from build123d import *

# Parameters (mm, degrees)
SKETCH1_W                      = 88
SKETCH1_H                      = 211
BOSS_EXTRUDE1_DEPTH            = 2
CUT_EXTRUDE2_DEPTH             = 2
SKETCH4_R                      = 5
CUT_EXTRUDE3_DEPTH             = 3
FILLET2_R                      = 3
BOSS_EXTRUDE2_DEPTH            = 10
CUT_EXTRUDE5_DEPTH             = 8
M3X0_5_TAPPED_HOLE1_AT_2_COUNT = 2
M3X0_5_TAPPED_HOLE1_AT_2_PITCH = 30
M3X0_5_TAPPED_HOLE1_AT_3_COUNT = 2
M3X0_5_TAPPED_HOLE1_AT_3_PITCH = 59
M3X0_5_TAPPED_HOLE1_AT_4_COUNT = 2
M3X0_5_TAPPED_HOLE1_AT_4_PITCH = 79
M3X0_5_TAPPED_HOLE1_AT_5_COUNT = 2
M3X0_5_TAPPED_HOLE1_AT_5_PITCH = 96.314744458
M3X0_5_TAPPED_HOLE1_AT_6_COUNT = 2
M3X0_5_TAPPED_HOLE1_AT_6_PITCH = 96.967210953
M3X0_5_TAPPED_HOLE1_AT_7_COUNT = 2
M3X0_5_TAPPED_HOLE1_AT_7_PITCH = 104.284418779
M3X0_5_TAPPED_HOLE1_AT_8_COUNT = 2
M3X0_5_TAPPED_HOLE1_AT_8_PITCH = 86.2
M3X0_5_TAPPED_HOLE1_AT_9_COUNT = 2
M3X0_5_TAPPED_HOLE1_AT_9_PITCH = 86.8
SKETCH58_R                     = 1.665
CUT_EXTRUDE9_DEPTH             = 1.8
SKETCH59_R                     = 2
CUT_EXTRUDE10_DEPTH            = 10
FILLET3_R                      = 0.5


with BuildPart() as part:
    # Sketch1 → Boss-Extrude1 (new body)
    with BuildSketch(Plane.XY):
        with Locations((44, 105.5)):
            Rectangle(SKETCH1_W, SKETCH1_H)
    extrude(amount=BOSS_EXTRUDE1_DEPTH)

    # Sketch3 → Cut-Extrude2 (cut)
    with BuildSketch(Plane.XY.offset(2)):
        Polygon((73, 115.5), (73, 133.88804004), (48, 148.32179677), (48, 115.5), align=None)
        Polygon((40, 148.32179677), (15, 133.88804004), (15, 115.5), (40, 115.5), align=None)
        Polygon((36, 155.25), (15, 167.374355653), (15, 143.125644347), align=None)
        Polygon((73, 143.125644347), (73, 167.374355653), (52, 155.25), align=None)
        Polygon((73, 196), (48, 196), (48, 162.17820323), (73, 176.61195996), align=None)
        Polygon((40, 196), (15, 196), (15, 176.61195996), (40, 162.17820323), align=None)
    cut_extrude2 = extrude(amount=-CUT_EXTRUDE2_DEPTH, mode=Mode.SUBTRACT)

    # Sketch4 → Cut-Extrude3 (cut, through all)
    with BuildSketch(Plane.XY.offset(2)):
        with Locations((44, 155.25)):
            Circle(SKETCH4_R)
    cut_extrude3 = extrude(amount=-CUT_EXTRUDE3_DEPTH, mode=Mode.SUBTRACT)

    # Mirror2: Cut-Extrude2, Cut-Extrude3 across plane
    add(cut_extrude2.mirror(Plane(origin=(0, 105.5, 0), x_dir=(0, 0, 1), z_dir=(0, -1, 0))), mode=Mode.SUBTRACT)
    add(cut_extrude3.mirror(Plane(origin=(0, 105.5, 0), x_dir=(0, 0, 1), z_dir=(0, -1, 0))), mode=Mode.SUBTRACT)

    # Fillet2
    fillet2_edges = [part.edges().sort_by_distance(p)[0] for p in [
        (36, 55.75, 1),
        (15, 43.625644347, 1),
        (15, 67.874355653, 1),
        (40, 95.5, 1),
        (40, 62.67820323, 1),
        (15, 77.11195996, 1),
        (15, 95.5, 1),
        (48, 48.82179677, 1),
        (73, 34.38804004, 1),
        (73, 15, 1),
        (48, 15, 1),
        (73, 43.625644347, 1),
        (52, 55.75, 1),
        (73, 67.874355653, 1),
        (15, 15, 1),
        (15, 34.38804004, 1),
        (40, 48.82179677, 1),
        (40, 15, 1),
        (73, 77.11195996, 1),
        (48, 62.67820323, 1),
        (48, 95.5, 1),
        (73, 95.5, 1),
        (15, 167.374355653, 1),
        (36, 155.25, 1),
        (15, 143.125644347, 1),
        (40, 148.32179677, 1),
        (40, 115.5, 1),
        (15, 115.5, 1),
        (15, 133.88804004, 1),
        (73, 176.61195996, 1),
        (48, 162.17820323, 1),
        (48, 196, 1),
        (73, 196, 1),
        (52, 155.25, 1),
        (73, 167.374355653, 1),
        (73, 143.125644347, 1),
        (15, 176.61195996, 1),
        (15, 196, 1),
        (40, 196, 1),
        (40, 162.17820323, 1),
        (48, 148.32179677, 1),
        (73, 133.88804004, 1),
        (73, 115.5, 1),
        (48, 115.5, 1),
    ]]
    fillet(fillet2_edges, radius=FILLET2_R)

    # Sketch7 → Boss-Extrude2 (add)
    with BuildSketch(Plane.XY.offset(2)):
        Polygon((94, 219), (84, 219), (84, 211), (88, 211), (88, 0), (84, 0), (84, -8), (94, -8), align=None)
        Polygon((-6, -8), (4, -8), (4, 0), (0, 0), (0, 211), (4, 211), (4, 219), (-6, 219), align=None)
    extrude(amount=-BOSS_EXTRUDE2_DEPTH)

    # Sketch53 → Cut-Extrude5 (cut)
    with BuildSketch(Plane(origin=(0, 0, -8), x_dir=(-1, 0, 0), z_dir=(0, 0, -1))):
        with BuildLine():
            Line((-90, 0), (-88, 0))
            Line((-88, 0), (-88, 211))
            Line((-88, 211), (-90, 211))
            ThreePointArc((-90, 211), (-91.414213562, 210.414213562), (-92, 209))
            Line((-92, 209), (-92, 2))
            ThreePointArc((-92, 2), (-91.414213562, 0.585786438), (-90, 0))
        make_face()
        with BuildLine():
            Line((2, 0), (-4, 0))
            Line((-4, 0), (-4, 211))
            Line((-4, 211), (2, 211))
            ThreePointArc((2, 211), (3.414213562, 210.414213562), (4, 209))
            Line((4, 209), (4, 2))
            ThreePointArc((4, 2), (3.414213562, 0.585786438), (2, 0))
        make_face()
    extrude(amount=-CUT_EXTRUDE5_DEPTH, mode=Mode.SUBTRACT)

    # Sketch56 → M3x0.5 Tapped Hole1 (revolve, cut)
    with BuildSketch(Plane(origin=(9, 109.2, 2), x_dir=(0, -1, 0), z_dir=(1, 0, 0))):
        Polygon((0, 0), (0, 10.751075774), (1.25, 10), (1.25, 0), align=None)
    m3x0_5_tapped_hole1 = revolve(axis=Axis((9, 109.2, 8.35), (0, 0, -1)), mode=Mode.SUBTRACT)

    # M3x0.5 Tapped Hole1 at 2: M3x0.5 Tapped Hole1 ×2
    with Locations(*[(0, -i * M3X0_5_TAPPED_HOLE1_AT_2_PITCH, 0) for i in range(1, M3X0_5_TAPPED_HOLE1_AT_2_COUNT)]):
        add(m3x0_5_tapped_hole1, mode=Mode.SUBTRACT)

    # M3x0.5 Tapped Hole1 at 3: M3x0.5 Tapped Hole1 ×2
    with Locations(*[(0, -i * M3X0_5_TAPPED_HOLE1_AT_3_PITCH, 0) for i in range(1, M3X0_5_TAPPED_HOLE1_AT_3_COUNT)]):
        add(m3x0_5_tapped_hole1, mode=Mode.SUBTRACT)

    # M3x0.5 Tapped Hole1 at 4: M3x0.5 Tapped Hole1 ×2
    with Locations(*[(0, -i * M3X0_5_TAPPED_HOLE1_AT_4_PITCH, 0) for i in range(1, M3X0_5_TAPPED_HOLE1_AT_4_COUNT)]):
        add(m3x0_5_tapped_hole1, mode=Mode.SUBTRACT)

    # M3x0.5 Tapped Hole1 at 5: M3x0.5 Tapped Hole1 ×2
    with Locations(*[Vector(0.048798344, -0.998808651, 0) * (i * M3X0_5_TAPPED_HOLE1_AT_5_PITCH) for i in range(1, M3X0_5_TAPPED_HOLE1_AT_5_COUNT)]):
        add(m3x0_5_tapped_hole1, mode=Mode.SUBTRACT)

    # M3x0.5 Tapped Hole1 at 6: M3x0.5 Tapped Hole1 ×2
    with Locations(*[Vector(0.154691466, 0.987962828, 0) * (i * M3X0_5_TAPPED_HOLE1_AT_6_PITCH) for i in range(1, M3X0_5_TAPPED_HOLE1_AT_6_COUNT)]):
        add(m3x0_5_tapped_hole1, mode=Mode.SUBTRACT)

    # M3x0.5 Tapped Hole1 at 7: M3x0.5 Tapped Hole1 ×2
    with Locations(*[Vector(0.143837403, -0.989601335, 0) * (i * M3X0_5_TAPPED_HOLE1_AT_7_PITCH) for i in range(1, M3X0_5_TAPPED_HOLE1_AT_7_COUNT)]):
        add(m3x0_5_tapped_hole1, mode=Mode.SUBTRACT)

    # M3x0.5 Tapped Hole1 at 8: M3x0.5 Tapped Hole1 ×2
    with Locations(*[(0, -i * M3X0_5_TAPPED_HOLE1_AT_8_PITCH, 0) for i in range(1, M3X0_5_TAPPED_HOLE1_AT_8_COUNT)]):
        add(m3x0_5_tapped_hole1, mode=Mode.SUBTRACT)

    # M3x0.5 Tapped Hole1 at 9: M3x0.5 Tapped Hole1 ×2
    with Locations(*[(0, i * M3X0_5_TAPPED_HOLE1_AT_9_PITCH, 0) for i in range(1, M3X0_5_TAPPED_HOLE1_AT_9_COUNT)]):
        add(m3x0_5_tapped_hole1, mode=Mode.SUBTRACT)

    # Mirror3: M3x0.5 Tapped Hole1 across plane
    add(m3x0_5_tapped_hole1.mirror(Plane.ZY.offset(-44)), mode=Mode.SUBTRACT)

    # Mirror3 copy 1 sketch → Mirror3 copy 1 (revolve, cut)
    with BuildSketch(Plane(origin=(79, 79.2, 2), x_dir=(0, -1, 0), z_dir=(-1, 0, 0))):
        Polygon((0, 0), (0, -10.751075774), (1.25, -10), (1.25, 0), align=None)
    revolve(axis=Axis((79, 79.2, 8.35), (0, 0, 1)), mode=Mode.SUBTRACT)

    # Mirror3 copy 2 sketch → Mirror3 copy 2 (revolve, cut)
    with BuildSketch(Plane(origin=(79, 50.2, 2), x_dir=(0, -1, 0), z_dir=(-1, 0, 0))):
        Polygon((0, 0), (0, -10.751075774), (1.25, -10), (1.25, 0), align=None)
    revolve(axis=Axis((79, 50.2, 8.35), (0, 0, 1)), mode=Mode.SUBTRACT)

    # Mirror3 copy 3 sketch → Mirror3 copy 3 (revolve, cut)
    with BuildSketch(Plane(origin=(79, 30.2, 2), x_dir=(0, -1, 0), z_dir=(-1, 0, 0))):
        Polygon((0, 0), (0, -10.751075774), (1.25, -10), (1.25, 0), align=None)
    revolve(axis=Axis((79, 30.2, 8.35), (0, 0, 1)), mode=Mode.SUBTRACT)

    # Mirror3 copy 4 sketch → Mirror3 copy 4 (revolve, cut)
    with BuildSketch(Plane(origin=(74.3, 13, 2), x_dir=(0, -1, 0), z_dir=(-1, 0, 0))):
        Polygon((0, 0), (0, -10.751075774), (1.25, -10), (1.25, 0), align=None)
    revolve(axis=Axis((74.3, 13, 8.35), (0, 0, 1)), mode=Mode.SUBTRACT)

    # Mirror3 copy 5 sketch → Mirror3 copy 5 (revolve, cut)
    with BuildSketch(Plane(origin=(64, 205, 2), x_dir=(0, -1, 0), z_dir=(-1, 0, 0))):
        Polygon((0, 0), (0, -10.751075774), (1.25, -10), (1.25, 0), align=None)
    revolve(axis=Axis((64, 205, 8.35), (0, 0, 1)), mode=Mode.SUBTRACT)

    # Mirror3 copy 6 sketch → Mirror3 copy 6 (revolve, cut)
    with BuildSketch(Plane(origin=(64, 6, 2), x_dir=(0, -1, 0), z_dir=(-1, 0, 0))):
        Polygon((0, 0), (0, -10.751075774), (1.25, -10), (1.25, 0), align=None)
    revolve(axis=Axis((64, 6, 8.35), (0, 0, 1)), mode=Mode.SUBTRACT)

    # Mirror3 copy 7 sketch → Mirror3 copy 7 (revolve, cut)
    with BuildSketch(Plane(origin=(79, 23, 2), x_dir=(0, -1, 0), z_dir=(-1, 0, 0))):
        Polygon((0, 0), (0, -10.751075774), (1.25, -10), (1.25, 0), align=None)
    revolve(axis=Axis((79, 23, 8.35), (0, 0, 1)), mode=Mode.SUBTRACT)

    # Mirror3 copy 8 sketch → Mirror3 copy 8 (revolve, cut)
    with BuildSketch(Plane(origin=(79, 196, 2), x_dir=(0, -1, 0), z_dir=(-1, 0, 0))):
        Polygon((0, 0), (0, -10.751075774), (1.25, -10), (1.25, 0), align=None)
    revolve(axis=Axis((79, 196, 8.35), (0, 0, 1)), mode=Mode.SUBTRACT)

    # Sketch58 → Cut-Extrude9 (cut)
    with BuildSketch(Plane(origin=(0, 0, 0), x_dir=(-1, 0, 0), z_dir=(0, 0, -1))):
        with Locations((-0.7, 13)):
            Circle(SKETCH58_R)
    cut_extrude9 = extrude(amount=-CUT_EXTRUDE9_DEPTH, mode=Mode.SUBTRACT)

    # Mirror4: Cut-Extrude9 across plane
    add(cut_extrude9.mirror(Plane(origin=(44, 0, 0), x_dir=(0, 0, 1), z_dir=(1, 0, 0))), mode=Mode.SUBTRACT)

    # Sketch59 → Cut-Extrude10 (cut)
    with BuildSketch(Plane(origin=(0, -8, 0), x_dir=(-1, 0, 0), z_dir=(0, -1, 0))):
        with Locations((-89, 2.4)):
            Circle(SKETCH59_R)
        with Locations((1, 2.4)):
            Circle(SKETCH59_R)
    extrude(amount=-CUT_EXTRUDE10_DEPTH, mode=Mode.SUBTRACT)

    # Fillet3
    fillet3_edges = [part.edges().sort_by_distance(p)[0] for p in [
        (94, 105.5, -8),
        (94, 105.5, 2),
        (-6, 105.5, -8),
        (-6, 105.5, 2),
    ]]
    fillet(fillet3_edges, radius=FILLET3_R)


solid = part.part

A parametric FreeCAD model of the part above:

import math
import FreeCAD as App
import Part
import Sketcher

V = App.Vector
Q = App.Units.Quantity


def edges_at(feature, points):
    """Names of the edges that pass closest to the given points."""
    edges = feature.Shape.Edges
    near = lambda p: min(range(len(edges)), key=lambda i: edges[i].distToShape(Part.Vertex(*p))[0])
    return sorted({f"Edge{near(p) + 1}" for p in points})

doc = App.newDocument("Part")
body = doc.addObject("PartDesign::Body", "Body")

# Sketch on XY plane
sketch1 = body.newObject("Sketcher::SketchObject", "Sketch")
sketch1.AttachmentSupport = (doc.getObject("XY_Plane"), [""])
sketch1.MapMode = "FlatFace"
sketch1.addGeometry(Part.LineSegment(V(0, 211, 0), V(0, 0, 0)), False)
sketch1.addGeometry(Part.LineSegment(V(0, 0, 0), V(88, 0, 0)), False)
sketch1.addGeometry(Part.LineSegment(V(88, 0, 0), V(88, 211, 0)), False)
sketch1.addGeometry(Part.LineSegment(V(88, 211, 0), V(0, 211, 0)), False)
sketch1.addConstraint(Sketcher.Constraint("Coincident", 0, 2, 1, 1))
sketch1.addConstraint(Sketcher.Constraint("Coincident", 1, 2, 2, 1))
sketch1.addConstraint(Sketcher.Constraint("Coincident", 2, 2, 3, 1))
sketch1.addConstraint(Sketcher.Constraint("Coincident", 3, 2, 0, 1))
sketch1.addConstraint(Sketcher.Constraint("Vertical", 0))
sketch1.addConstraint(Sketcher.Constraint("Horizontal", 1))
sketch1.addConstraint(Sketcher.Constraint("Vertical", 2))
sketch1.addConstraint(Sketcher.Constraint("Horizontal", 3))
sketch1.addConstraint(Sketcher.Constraint("Coincident", 0, 2, -1, 1))
sketch1.addConstraint(Sketcher.Constraint("DistanceX", 1, 1, 1, 2, Q("88 mm")))
sketch1.addConstraint(Sketcher.Constraint("DistanceY", 0, 2, 0, 1, Q("211 mm")))
pad1 = body.newObject("PartDesign::Pad", "Pad")
pad1.Profile = sketch1
pad1.Length = 2

# Sketch on XY plane
sketch2 = body.newObject("Sketcher::SketchObject", "Sketch001")
sketch2.AttachmentSupport = (doc.getObject("XY_Plane"), [""])
sketch2.MapMode = "FlatFace"
sketch2.AttachmentOffset = App.Placement(V(0, 0, 2), App.Rotation())
sketch2.addGeometry(Part.LineSegment(V(73, 116, 0), V(73, 134, 0)), False)
sketch2.addGeometry(Part.LineSegment(V(73, 134, 0), V(48, 148, 0)), False)
sketch2.addGeometry(Part.LineSegment(V(48, 148, 0), V(48, 116, 0)), False)
sketch2.addGeometry(Part.LineSegment(V(48, 116, 0), V(73, 116, 0)), False)
sketch2.addGeometry(Part.LineSegment(V(40, 148, 0), V(15, 134, 0)), False)
sketch2.addGeometry(Part.LineSegment(V(15, 134, 0), V(15, 116, 0)), False)
sketch2.addGeometry(Part.LineSegment(V(15, 116, 0), V(40, 116, 0)), False)
sketch2.addGeometry(Part.LineSegment(V(40, 116, 0), V(40, 148, 0)), False)
sketch2.addGeometry(Part.LineSegment(V(36, 155, 0), V(15, 167, 0)), False)
sketch2.addGeometry(Part.LineSegment(V(15, 167, 0), V(15, 143, 0)), False)
sketch2.addGeometry(Part.LineSegment(V(15, 143, 0), V(36, 155, 0)), False)
sketch2.addGeometry(Part.LineSegment(V(73, 143, 0), V(73, 167, 0)), False)
sketch2.addGeometry(Part.LineSegment(V(73, 167, 0), V(52, 155, 0)), False)
sketch2.addGeometry(Part.LineSegment(V(52, 155, 0), V(73, 143, 0)), False)
sketch2.addGeometry(Part.LineSegment(V(73, 196, 0), V(48, 196, 0)), False)
sketch2.addGeometry(Part.LineSegment(V(48, 196, 0), V(48, 162, 0)), False)
sketch2.addGeometry(Part.LineSegment(V(48, 162, 0), V(73, 177, 0)), False)
sketch2.addGeometry(Part.LineSegment(V(73, 177, 0), V(73, 196, 0)), False)
sketch2.addGeometry(Part.LineSegment(V(40, 196, 0), V(15, 196, 0)), False)
sketch2.addGeometry(Part.LineSegment(V(15, 196, 0), V(15, 177, 0)), False)
sketch2.addGeometry(Part.LineSegment(V(15, 177, 0), V(40, 162, 0)), False)
sketch2.addGeometry(Part.LineSegment(V(40, 162, 0), V(40, 196, 0)), False)
sketch2.addConstraint(Sketcher.Constraint("Coincident", 0, 2, 1, 1))
sketch2.addConstraint(Sketcher.Constraint("Coincident", 1, 2, 2, 1))
sketch2.addConstraint(Sketcher.Constraint("Coincident", 2, 2, 3, 1))
sketch2.addConstraint(Sketcher.Constraint("Coincident", 3, 2, 0, 1))
sketch2.addConstraint(Sketcher.Constraint("Coincident", 4, 2, 5, 1))
sketch2.addConstraint(Sketcher.Constraint("Coincident", 5, 2, 6, 1))
sketch2.addConstraint(Sketcher.Constraint("Coincident", 6, 2, 7, 1))
sketch2.addConstraint(Sketcher.Constraint("Coincident", 7, 2, 4, 1))
sketch2.addConstraint(Sketcher.Constraint("Coincident", 8, 2, 9, 1))
sketch2.addConstraint(Sketcher.Constraint("Coincident", 9, 2, 10, 1))
sketch2.addConstraint(Sketcher.Constraint("Coincident", 10, 2, 8, 1))
sketch2.addConstraint(Sketcher.Constraint("Coincident", 11, 2, 12, 1))
sketch2.addConstraint(Sketcher.Constraint("Coincident", 12, 2, 13, 1))
sketch2.addConstraint(Sketcher.Constraint("Coincident", 13, 2, 11, 1))
sketch2.addConstraint(Sketcher.Constraint("Coincident", 14, 2, 15, 1))
sketch2.addConstraint(Sketcher.Constraint("Coincident", 15, 2, 16, 1))
sketch2.addConstraint(Sketcher.Constraint("Coincident", 16, 2, 17, 1))
sketch2.addConstraint(Sketcher.Constraint("Coincident", 17, 2, 14, 1))
sketch2.addConstraint(Sketcher.Constraint("Coincident", 18, 2, 19, 1))
sketch2.addConstraint(Sketcher.Constraint("Coincident", 19, 2, 20, 1))
sketch2.addConstraint(Sketcher.Constraint("Coincident", 20, 2, 21, 1))
sketch2.addConstraint(Sketcher.Constraint("Coincident", 21, 2, 18, 1))
sketch2.addConstraint(Sketcher.Constraint("Vertical", 0))
sketch2.addConstraint(Sketcher.Constraint("Vertical", 2))
sketch2.addConstraint(Sketcher.Constraint("Horizontal", 3))
sketch2.addConstraint(Sketcher.Constraint("Vertical", 5))
sketch2.addConstraint(Sketcher.Constraint("Horizontal", 6))
sketch2.addConstraint(Sketcher.Constraint("Vertical", 7))
sketch2.addConstraint(Sketcher.Constraint("Vertical", 9))
sketch2.addConstraint(Sketcher.Constraint("Vertical", 11))
sketch2.addConstraint(Sketcher.Constraint("Horizontal", 14))
sketch2.addConstraint(Sketcher.Constraint("Vertical", 15))
sketch2.addConstraint(Sketcher.Constraint("Vertical", 17))
sketch2.addConstraint(Sketcher.Constraint("Horizontal", 18))
sketch2.addConstraint(Sketcher.Constraint("Vertical", 19))
sketch2.addConstraint(Sketcher.Constraint("Vertical", 21))
sketch2.addConstraint(Sketcher.Constraint("Parallel", 1, 8))
sketch2.addConstraint(Sketcher.Constraint("Parallel", 4, 10))
sketch2.addConstraint(Sketcher.Constraint("Parallel", 10, 12))
sketch2.addConstraint(Sketcher.Constraint("Parallel", 8, 13))
sketch2.addConstraint(Sketcher.Constraint("Parallel", 12, 16))
sketch2.addConstraint(Sketcher.Constraint("Parallel", 13, 20))
sketch2.addConstraint(Sketcher.Constraint("Horizontal", 0, 2, 4, 2))
sketch2.addConstraint(Sketcher.Constraint("Horizontal", 3, 2, 5, 2))
sketch2.addConstraint(Sketcher.Constraint("Horizontal", 1, 2, 7, 2))
sketch2.addConstraint(Sketcher.Constraint("Horizontal", 8, 2, 11, 2))
sketch2.addConstraint(Sketcher.Constraint("Horizontal", 10, 2, 12, 2))
sketch2.addConstraint(Sketcher.Constraint("Horizontal", 9, 2, 13, 2))
sketch2.addConstraint(Sketcher.Constraint("Horizontal", 17, 2, 18, 2))
sketch2.addConstraint(Sketcher.Constraint("Horizontal", 16, 2, 19, 2))
sketch2.addConstraint(Sketcher.Constraint("Horizontal", 15, 2, 20, 2))
sketch2.addConstraint(Sketcher.Constraint("Vertical", 5, 2, 8, 2))
sketch2.addConstraint(Sketcher.Constraint("Vertical", 3, 2, 11, 2))
sketch2.addConstraint(Sketcher.Constraint("Vertical", 2, 2, 14, 2))
sketch2.addConstraint(Sketcher.Constraint("Vertical", 13, 2, 16, 2))
sketch2.addConstraint(Sketcher.Constraint("Vertical", 9, 2, 18, 2))
sketch2.addConstraint(Sketcher.Constraint("DistanceX", 3, 1, 3, 2, Q("25 mm")))
sketch2.addConstraint(Sketcher.Constraint("Angle", 1, Q("150 deg")))
sketch2.addConstraint(Sketcher.Constraint("DistanceX", -1, 1, 0, 2, Q("73 mm")))
sketch2.addConstraint(Sketcher.Constraint("DistanceX", -1, 1, 4, 2, Q("15 mm")))
sketch2.addConstraint(Sketcher.Constraint("DistanceX", -1, 1, 10, 2, Q("36 mm")))
sketch2.addConstraint(Sketcher.Constraint("DistanceY", -1, 1, 14, 2, Q("196 mm")))
sketch2.addConstraint(Sketcher.Constraint("DistanceY", -1, 1, 2, 2, Q("115.5 mm")))
sketch2.addConstraint(Sketcher.Constraint("DistanceY", -1, 1, 10, 2, Q("155.25 mm")))
sketch2.addConstraint(Sketcher.Constraint("DistanceY", 0, 1, 0, 2, Q("18.38804 mm")))
sketch2.addConstraint(Sketcher.Constraint("DistanceY", 17, 1, 17, 2, Q("19.38804 mm")))
pocket1 = body.newObject("PartDesign::Pocket", "Pocket")
pocket1.Profile = sketch2
pocket1.Length = 2

# Sketch on XY plane
sketch3 = body.newObject("Sketcher::SketchObject", "Sketch002")
sketch3.AttachmentSupport = (doc.getObject("XY_Plane"), [""])
sketch3.MapMode = "FlatFace"
sketch3.AttachmentOffset = App.Placement(V(0, 0, 2), App.Rotation())
sketch3.addGeometry(Part.Circle(V(44, 155, 0), V(0, 0, 1), 5), False)
sketch3.addConstraint(Sketcher.Constraint("Diameter", 0, Q("10 mm")))
sketch3.addConstraint(Sketcher.Constraint("DistanceX", -1, 1, 0, 3, Q("44 mm")))
sketch3.addConstraint(Sketcher.Constraint("DistanceY", -1, 1, 0, 3, Q("155.25 mm")))
pocket2 = body.newObject("PartDesign::Pocket", "Pocket001")
pocket2.Profile = sketch3
pocket2.Type = "ThroughAll"
doc.recompute()

datumplane = body.newObject("PartDesign::Plane", "DatumPlane")
datumplane.AttachmentSupport = (doc.getObject("XZ_Plane"), [""])
datumplane.MapMode = "FlatFace"
datumplane.AttachmentOffset = App.Placement(V(0, 0, -105.5), App.Rotation())
mirrored = body.newObject("PartDesign::Mirrored", "Mirrored")
mirrored.Originals = [pocket1, pocket2]
mirrored.MirrorPlane = (datumplane, [""])
body.Tip = mirrored
doc.recompute()

fillet = body.newObject("PartDesign::Fillet", "Fillet")
fillet.Base = (mirrored, edges_at(mirrored, [
    (36, 55.75, 1),
    (15, 43.626, 1),
    (15, 67.874, 1),
    (40, 95.5, 1),
    (40, 62.678, 1),
    (15, 77.112, 1),
    (15, 95.5, 1),
    (48, 48.822, 1),
    (73, 34.388, 1),
    (73, 15, 1),
    (48, 15, 1),
    (73, 43.626, 1),
    (52, 55.75, 1),
    (73, 67.874, 1),
    (15, 15, 1),
    (15, 34.388, 1),
    (40, 48.822, 1),
    (40, 15, 1),
    (73, 77.112, 1),
    (48, 62.678, 1),
    (48, 95.5, 1),
    (73, 95.5, 1),
    (15, 167.374, 1),
    (36, 155.25, 1),
    (15, 143.126, 1),
    (40, 148.322, 1),
    (40, 115.5, 1),
    (15, 115.5, 1),
    (15, 133.888, 1),
    (73, 176.612, 1),
    (48, 162.178, 1),
    (48, 196, 1),
    (73, 196, 1),
    (52, 155.25, 1),
    (73, 167.374, 1),
    (73, 143.126, 1),
    (15, 176.612, 1),
    (15, 196, 1),
    (40, 196, 1),
    (40, 162.178, 1),
    (48, 148.322, 1),
    (73, 133.888, 1),
    (73, 115.5, 1),
    (48, 115.5, 1),
]))
fillet.Radius = 3

# Sketch on XY plane
sketch4 = body.newObject("Sketcher::SketchObject", "Sketch003")
sketch4.AttachmentSupport = (doc.getObject("XY_Plane"), [""])
sketch4.MapMode = "FlatFace"
sketch4.AttachmentOffset = App.Placement(V(0, 0, 2), App.Rotation())
sketch4.addGeometry(Part.LineSegment(V(94, 219, 0), V(84, 219, 0)), False)
sketch4.addGeometry(Part.LineSegment(V(84, 219, 0), V(84, 211, 0)), False)
sketch4.addGeometry(Part.LineSegment(V(84, 211, 0), V(88, 211, 0)), False)
sketch4.addGeometry(Part.LineSegment(V(88, 211, 0), V(88, 0, 0)), False)
sketch4.addGeometry(Part.LineSegment(V(88, 0, 0), V(84, 0, 0)), False)
sketch4.addGeometry(Part.LineSegment(V(84, 0, 0), V(84, -8, 0)), False)
sketch4.addGeometry(Part.LineSegment(V(84, -8, 0), V(94, -8, 0)), False)
sketch4.addGeometry(Part.LineSegment(V(94, -8, 0), V(94, 219, 0)), False)
sketch4.addGeometry(Part.LineSegment(V(-6, -8, 0), V(4, -8, 0)), False)
sketch4.addGeometry(Part.LineSegment(V(4, -8, 0), V(4, 0, 0)), False)
sketch4.addGeometry(Part.LineSegment(V(4, 0, 0), V(0, 0, 0)), False)
sketch4.addGeometry(Part.LineSegment(V(0, 0, 0), V(0, 211, 0)), False)
sketch4.addGeometry(Part.LineSegment(V(0, 211, 0), V(4, 211, 0)), False)
sketch4.addGeometry(Part.LineSegment(V(4, 211, 0), V(4, 219, 0)), False)
sketch4.addGeometry(Part.LineSegment(V(4, 219, 0), V(-6, 219, 0)), False)
sketch4.addGeometry(Part.LineSegment(V(-6, 219, 0), V(-6, -8, 0)), False)
sketch4.addConstraint(Sketcher.Constraint("Coincident", 0, 2, 1, 1))
sketch4.addConstraint(Sketcher.Constraint("Coincident", 1, 2, 2, 1))
sketch4.addConstraint(Sketcher.Constraint("Coincident", 2, 2, 3, 1))
sketch4.addConstraint(Sketcher.Constraint("Coincident", 3, 2, 4, 1))
sketch4.addConstraint(Sketcher.Constraint("Coincident", 4, 2, 5, 1))
sketch4.addConstraint(Sketcher.Constraint("Coincident", 5, 2, 6, 1))
sketch4.addConstraint(Sketcher.Constraint("Coincident", 6, 2, 7, 1))
sketch4.addConstraint(Sketcher.Constraint("Coincident", 7, 2, 0, 1))
sketch4.addConstraint(Sketcher.Constraint("Coincident", 8, 2, 9, 1))
sketch4.addConstraint(Sketcher.Constraint("Coincident", 9, 2, 10, 1))
sketch4.addConstraint(Sketcher.Constraint("Coincident", 10, 2, 11, 1))
sketch4.addConstraint(Sketcher.Constraint("Coincident", 11, 2, 12, 1))
sketch4.addConstraint(Sketcher.Constraint("Coincident", 12, 2, 13, 1))
sketch4.addConstraint(Sketcher.Constraint("Coincident", 13, 2, 14, 1))
sketch4.addConstraint(Sketcher.Constraint("Coincident", 14, 2, 15, 1))
sketch4.addConstraint(Sketcher.Constraint("Coincident", 15, 2, 8, 1))
sketch4.addConstraint(Sketcher.Constraint("Horizontal", 0))
sketch4.addConstraint(Sketcher.Constraint("Vertical", 1))
sketch4.addConstraint(Sketcher.Constraint("Horizontal", 2))
sketch4.addConstraint(Sketcher.Constraint("Vertical", 3))
sketch4.addConstraint(Sketcher.Constraint("Horizontal", 4))
sketch4.addConstraint(Sketcher.Constraint("Vertical", 5))
sketch4.addConstraint(Sketcher.Constraint("Horizontal", 6))
sketch4.addConstraint(Sketcher.Constraint("Vertical", 7))
sketch4.addConstraint(Sketcher.Constraint("Horizontal", 8))
sketch4.addConstraint(Sketcher.Constraint("Vertical", 9))
sketch4.addConstraint(Sketcher.Constraint("Horizontal", 10))
sketch4.addConstraint(Sketcher.Constraint("Vertical", 11))
sketch4.addConstraint(Sketcher.Constraint("Horizontal", 12))
sketch4.addConstraint(Sketcher.Constraint("Vertical", 13))
sketch4.addConstraint(Sketcher.Constraint("Horizontal", 14))
sketch4.addConstraint(Sketcher.Constraint("Vertical", 15))
sketch4.addConstraint(Sketcher.Constraint("Coincident", 10, 2, -1, 1))
sketch4.addConstraint(Sketcher.Constraint("PointOnObject", 3, 2, -1))
sketch4.addConstraint(Sketcher.Constraint("Horizontal", 6, 2, 8, 2))
sketch4.addConstraint(Sketcher.Constraint("Horizontal", 2, 2, 11, 2))
sketch4.addConstraint(Sketcher.Constraint("Horizontal", 7, 2, 13, 2))
sketch4.addConstraint(Sketcher.Constraint("Vertical", 1, 2, 4, 2))
sketch4.addConstraint(Sketcher.Constraint("Vertical", 9, 2, 12, 2))
sketch4.addConstraint(Sketcher.Constraint("Equal", 6, 8))
sketch4.addConstraint(Sketcher.Constraint("Equal", 4, 10))
sketch4.addConstraint(Sketcher.Constraint("Equal", 1, 5))
sketch4.addConstraint(Sketcher.Constraint("DistanceX", 0, 2, 0, 1, Q("10 mm")))
sketch4.addConstraint(Sketcher.Constraint("DistanceX", 2, 1, 2, 2, Q("4 mm")))
sketch4.addConstraint(Sketcher.Constraint("DistanceY", 1, 2, 1, 1, Q("8 mm")))
sketch4.addConstraint(Sketcher.Constraint("DistanceY", 3, 2, 3, 1, Q("211 mm")))
sketch4.addConstraint(Sketcher.Constraint("DistanceX", -1, 1, 0, 2, Q("84 mm")))
pad2 = body.newObject("PartDesign::Pad", "Pad001")
pad2.Profile = sketch4
pad2.Length = 10
pad2.Reversed = True

# Sketch on XY plane
sketch5 = body.newObject("Sketcher::SketchObject", "Sketch004")
sketch5.AttachmentSupport = (doc.getObject("XY_Plane"), [""])
sketch5.MapMode = "FlatFace"
sketch5.AttachmentOffset = App.Placement(V(0, 0, -8), App.Rotation())
sketch5.addGeometry(Part.LineSegment(V(90, 0, 0), V(88, 0, 0)), False)
sketch5.addGeometry(Part.LineSegment(V(88, 0, 0), V(88, 211, 0)), False)
sketch5.addGeometry(Part.LineSegment(V(88, 211, 0), V(90, 211, 0)), False)
sketch5.addGeometry(Part.ArcOfCircle(Part.Circle(V(90, 209, 0), V(0, 0, 1), 2), math.radians(0), math.radians(90)), False)
sketch5.addGeometry(Part.LineSegment(V(92, 209, 0), V(92, 2, 0)), False)
sketch5.addGeometry(Part.ArcOfCircle(Part.Circle(V(90, 2, 0), V(0, 0, 1), 2), math.radians(-90), math.radians(0)), False)
sketch5.addGeometry(Part.LineSegment(V(4, 0, 0), V(-2, 0, 0)), False)
sketch5.addGeometry(Part.ArcOfCircle(Part.Circle(V(-2, 2, 0), V(0, 0, 1), 2), math.radians(-180), math.radians(-90)), False)
sketch5.addGeometry(Part.LineSegment(V(-4, 2, 0), V(-4, 209, 0)), False)
sketch5.addGeometry(Part.ArcOfCircle(Part.Circle(V(-2, 209, 0), V(0, 0, 1), 2), math.radians(90), math.radians(180)), False)
sketch5.addGeometry(Part.LineSegment(V(-2, 211, 0), V(4, 211, 0)), False)
sketch5.addGeometry(Part.LineSegment(V(4, 211, 0), V(4, 0, 0)), False)
sketch5.addConstraint(Sketcher.Constraint("Coincident", 0, 2, 1, 1))
sketch5.addConstraint(Sketcher.Constraint("Coincident", 1, 2, 2, 1))
sketch5.addConstraint(Sketcher.Constraint("Tangent", 2, 2, 3, 2))
sketch5.addConstraint(Sketcher.Constraint("Tangent", 3, 1, 4, 1))
sketch5.addConstraint(Sketcher.Constraint("Tangent", 4, 2, 5, 2))
sketch5.addConstraint(Sketcher.Constraint("Tangent", 5, 1, 0, 1))
sketch5.addConstraint(Sketcher.Constraint("Tangent", 6, 2, 7, 2))
sketch5.addConstraint(Sketcher.Constraint("Tangent", 7, 1, 8, 1))
sketch5.addConstraint(Sketcher.Constraint("Tangent", 8, 2, 9, 2))
sketch5.addConstraint(Sketcher.Constraint("Tangent", 9, 1, 10, 1))
sketch5.addConstraint(Sketcher.Constraint("Coincident", 10, 2, 11, 1))
sketch5.addConstraint(Sketcher.Constraint("Coincident", 11, 2, 6, 1))
sketch5.addConstraint(Sketcher.Constraint("Horizontal", 0))
sketch5.addConstraint(Sketcher.Constraint("Vertical", 1))
sketch5.addConstraint(Sketcher.Constraint("Horizontal", 2))
sketch5.addConstraint(Sketcher.Constraint("Vertical", 4))
sketch5.addConstraint(Sketcher.Constraint("Horizontal", 6))
sketch5.addConstraint(Sketcher.Constraint("Vertical", 8))
sketch5.addConstraint(Sketcher.Constraint("Horizontal", 10))
sketch5.addConstraint(Sketcher.Constraint("Vertical", 11))
sketch5.addConstraint(Sketcher.Constraint("Equal", 3, 5))
sketch5.addConstraint(Sketcher.Constraint("Equal", 5, 7))
sketch5.addConstraint(Sketcher.Constraint("Equal", 7, 9))
sketch5.addConstraint(Sketcher.Constraint("PointOnObject", 0, 2, -1))
sketch5.addConstraint(Sketcher.Constraint("PointOnObject", 6, 2, -1))
sketch5.addConstraint(Sketcher.Constraint("Horizontal", 3, 3, 9, 3))
sketch5.addConstraint(Sketcher.Constraint("Radius", 3, Q("2 mm")))
sketch5.addConstraint(Sketcher.Constraint("DistanceX", 0, 2, 0, 1, Q("2 mm")))
sketch5.addConstraint(Sketcher.Constraint("DistanceX", 6, 2, 6, 1, Q("6 mm")))
sketch5.addConstraint(Sketcher.Constraint("DistanceY", 1, 1, 1, 2, Q("211 mm")))
sketch5.addConstraint(Sketcher.Constraint("DistanceX", -1, 1, 3, 3, Q("90 mm")))
sketch5.addConstraint(Sketcher.Constraint("DistanceX", 7, 3, -1, 1, Q("2 mm")))
pocket3 = body.newObject("PartDesign::Pocket", "Pocket002")
pocket3.Profile = sketch5
pocket3.Length = 8
pocket3.Reversed = True

# Sketch on YZ plane
sketch6 = body.newObject("Sketcher::SketchObject", "Sketch005")
sketch6.AttachmentSupport = (doc.getObject("YZ_Plane"), [""])
sketch6.MapMode = "FlatFace"
sketch6.AttachmentOffset = App.Placement(V(0, 0, 9), App.Rotation())
sketch6.addGeometry(Part.LineSegment(V(109.2, -8.8, 0), V(109.2, 2, 0)), False)
sketch6.addGeometry(Part.LineSegment(V(109.2, 2, 0), V(108, 2, 0)), False)
sketch6.addGeometry(Part.LineSegment(V(108, 2, 0), V(108, -8, 0)), False)
sketch6.addGeometry(Part.LineSegment(V(108, -8, 0), V(109.2, -8.8, 0)), False)
sketch6.addGeometry(Part.LineSegment(V(109.2, 2, 0), V(109.2, -8.8, 0)), True)  # axis
sketch6.addConstraint(Sketcher.Constraint("Coincident", 0, 2, 1, 1))
sketch6.addConstraint(Sketcher.Constraint("Coincident", 1, 2, 2, 1))
sketch6.addConstraint(Sketcher.Constraint("Coincident", 2, 2, 3, 1))
sketch6.addConstraint(Sketcher.Constraint("Coincident", 3, 2, 0, 1))
sketch6.addConstraint(Sketcher.Constraint("Vertical", 0))
sketch6.addConstraint(Sketcher.Constraint("Horizontal", 1))
sketch6.addConstraint(Sketcher.Constraint("Vertical", 2))
sketch6.addConstraint(Sketcher.Constraint("Vertical", 4))
sketch6.addConstraint(Sketcher.Constraint("Coincident", 4, 1, 0, 2))
sketch6.addConstraint(Sketcher.Constraint("Equal", 0, 4))
sketch6.addConstraint(Sketcher.Constraint("DistanceY", 2, 2, 2, 1, Q("10 mm")))
sketch6.addConstraint(Sketcher.Constraint("Angle", 3, Q("-31 deg")))
sketch6.addConstraint(Sketcher.Constraint("DistanceY", -1, 1, 0, 2, Q("2 mm")))
sketch6.addConstraint(Sketcher.Constraint("DistanceX", 1, 2, 1, 1, Q("1.25 mm")))
sketch6.addConstraint(Sketcher.Constraint("DistanceX", -1, 1, 0, 2, Q("109.2 mm")))
groove = body.newObject("PartDesign::Groove", "Groove")
groove.Profile = sketch6
groove.ReferenceAxis = (sketch6, ["Axis0"])
groove.Angle = 360
doc.recompute()

linearpattern = body.newObject("PartDesign::LinearPattern", "LinearPattern")
linearpattern.Originals = [groove]
linearpattern.Direction = (doc.getObject("Y_Axis"), [""])
linearpattern.Mode = "offset"
linearpattern.Offset = 30
linearpattern.Occurrences = 2
linearpattern.Reversed = True
body.Tip = linearpattern
doc.recompute()

linearpattern2 = body.newObject("PartDesign::LinearPattern", "LinearPattern001")
linearpattern2.Originals = [groove]
linearpattern2.Direction = (doc.getObject("Y_Axis"), [""])
linearpattern2.Mode = "offset"
linearpattern2.Offset = 59
linearpattern2.Occurrences = 2
linearpattern2.Reversed = True
body.Tip = linearpattern2
doc.recompute()

linearpattern3 = body.newObject("PartDesign::LinearPattern", "LinearPattern002")
linearpattern3.Originals = [groove]
linearpattern3.Direction = (doc.getObject("Y_Axis"), [""])
linearpattern3.Mode = "offset"
linearpattern3.Offset = 79
linearpattern3.Occurrences = 2
linearpattern3.Reversed = True
body.Tip = linearpattern3
doc.recompute()

datumline = body.newObject("PartDesign::Line", "DatumLine")
datumline.Placement = App.Placement(V(0, 0, 0), App.Rotation(V(0, 0, 1), V(0.048798344, -0.998808651, 0)))
linearpattern4 = body.newObject("PartDesign::LinearPattern", "LinearPattern003")
linearpattern4.Originals = [groove]
linearpattern4.Direction = (datumline, [""])
linearpattern4.Mode = "offset"
linearpattern4.Offset = 96.314744
linearpattern4.Occurrences = 2
body.Tip = linearpattern4
doc.recompute()

datumline2 = body.newObject("PartDesign::Line", "DatumLine001")
datumline2.Placement = App.Placement(V(0, 0, 0), App.Rotation(V(0, 0, 1), V(0.154691466, 0.987962828, 0)))
linearpattern5 = body.newObject("PartDesign::LinearPattern", "LinearPattern004")
linearpattern5.Originals = [groove]
linearpattern5.Direction = (datumline2, [""])
linearpattern5.Mode = "offset"
linearpattern5.Offset = 96.967211
linearpattern5.Occurrences = 2
body.Tip = linearpattern5
doc.recompute()

datumline3 = body.newObject("PartDesign::Line", "DatumLine002")
datumline3.Placement = App.Placement(V(0, 0, 0), App.Rotation(V(0, 0, 1), V(0.143837403, -0.989601335, 0)))
linearpattern6 = body.newObject("PartDesign::LinearPattern", "LinearPattern005")
linearpattern6.Originals = [groove]
linearpattern6.Direction = (datumline3, [""])
linearpattern6.Mode = "offset"
linearpattern6.Offset = 104.284419
linearpattern6.Occurrences = 2
body.Tip = linearpattern6
doc.recompute()

linearpattern7 = body.newObject("PartDesign::LinearPattern", "LinearPattern006")
linearpattern7.Originals = [groove]
linearpattern7.Direction = (doc.getObject("Y_Axis"), [""])
linearpattern7.Mode = "offset"
linearpattern7.Offset = 86.2
linearpattern7.Occurrences = 2
linearpattern7.Reversed = True
body.Tip = linearpattern7
doc.recompute()

linearpattern8 = body.newObject("PartDesign::LinearPattern", "LinearPattern007")
linearpattern8.Originals = [groove]
linearpattern8.Direction = (doc.getObject("Y_Axis"), [""])
linearpattern8.Mode = "offset"
linearpattern8.Offset = 86.8
linearpattern8.Occurrences = 2
body.Tip = linearpattern8
doc.recompute()

datumplane2 = body.newObject("PartDesign::Plane", "DatumPlane001")
datumplane2.AttachmentSupport = (doc.getObject("YZ_Plane"), [""])
datumplane2.MapMode = "FlatFace"
datumplane2.AttachmentOffset = App.Placement(V(0, 0, 44), App.Rotation())
mirrored2 = body.newObject("PartDesign::Mirrored", "Mirrored001")
mirrored2.Originals = [groove]
mirrored2.MirrorPlane = (datumplane2, [""])
body.Tip = mirrored2

# Sketch on YZ plane
sketch7 = body.newObject("Sketcher::SketchObject", "Sketch006")
sketch7.AttachmentSupport = (doc.getObject("YZ_Plane"), [""])
sketch7.MapMode = "FlatFace"
sketch7.AttachmentOffset = App.Placement(V(0, 0, 79), App.Rotation())
sketch7.addGeometry(Part.LineSegment(V(79.2, 2, 0), V(79.2, -8.8, 0)), False)
sketch7.addGeometry(Part.LineSegment(V(79.2, -8.8, 0), V(78, -8, 0)), False)
sketch7.addGeometry(Part.LineSegment(V(78, -8, 0), V(78, 2, 0)), False)
sketch7.addGeometry(Part.LineSegment(V(78, 2, 0), V(79.2, 2, 0)), False)
sketch7.addGeometry(Part.LineSegment(V(79.2, -8.8, 0), V(79.2, 2, 0)), True)  # axis
sketch7.addConstraint(Sketcher.Constraint("Coincident", 0, 2, 1, 1))
sketch7.addConstraint(Sketcher.Constraint("Coincident", 1, 2, 2, 1))
sketch7.addConstraint(Sketcher.Constraint("Coincident", 2, 2, 3, 1))
sketch7.addConstraint(Sketcher.Constraint("Coincident", 3, 2, 0, 1))
sketch7.addConstraint(Sketcher.Constraint("Vertical", 0))
sketch7.addConstraint(Sketcher.Constraint("Vertical", 2))
sketch7.addConstraint(Sketcher.Constraint("Horizontal", 3))
sketch7.addConstraint(Sketcher.Constraint("Vertical", 4))
sketch7.addConstraint(Sketcher.Constraint("Coincident", 4, 1, 0, 2))
sketch7.addConstraint(Sketcher.Constraint("Horizontal", 2, 2, 4, 2))
sketch7.addConstraint(Sketcher.Constraint("DistanceY", 2, 1, 2, 2, Q("10 mm")))
sketch7.addConstraint(Sketcher.Constraint("Angle", 1, Q("149 deg")))
sketch7.addConstraint(Sketcher.Constraint("DistanceY", 1, 2, -1, 1, Q("8 mm")))
sketch7.addConstraint(Sketcher.Constraint("DistanceX", 3, 1, 3, 2, Q("1.25 mm")))
sketch7.addConstraint(Sketcher.Constraint("DistanceX", -1, 1, 0, 2, Q("79.2 mm")))
groove2 = body.newObject("PartDesign::Groove", "Groove001")
groove2.Profile = sketch7
groove2.ReferenceAxis = (sketch7, ["Axis0"])
groove2.Angle = 360

# Sketch on YZ plane
sketch8 = body.newObject("Sketcher::SketchObject", "Sketch007")
sketch8.AttachmentSupport = (doc.getObject("YZ_Plane"), [""])
sketch8.MapMode = "FlatFace"
sketch8.AttachmentOffset = App.Placement(V(0, 0, 79), App.Rotation())
sketch8.addGeometry(Part.LineSegment(V(50.2, 2, 0), V(50.2, -8.8, 0)), False)
sketch8.addGeometry(Part.LineSegment(V(50.2, -8.8, 0), V(49, -8, 0)), False)
sketch8.addGeometry(Part.LineSegment(V(49, -8, 0), V(49, 2, 0)), False)
sketch8.addGeometry(Part.LineSegment(V(49, 2, 0), V(50.2, 2, 0)), False)
sketch8.addGeometry(Part.LineSegment(V(50.2, -8.8, 0), V(50.2, 2, 0)), True)  # axis
sketch8.addConstraint(Sketcher.Constraint("Coincident", 0, 2, 1, 1))
sketch8.addConstraint(Sketcher.Constraint("Coincident", 1, 2, 2, 1))
sketch8.addConstraint(Sketcher.Constraint("Coincident", 2, 2, 3, 1))
sketch8.addConstraint(Sketcher.Constraint("Coincident", 3, 2, 0, 1))
sketch8.addConstraint(Sketcher.Constraint("Vertical", 0))
sketch8.addConstraint(Sketcher.Constraint("Vertical", 2))
sketch8.addConstraint(Sketcher.Constraint("Horizontal", 3))
sketch8.addConstraint(Sketcher.Constraint("Vertical", 4))
sketch8.addConstraint(Sketcher.Constraint("Coincident", 4, 1, 0, 2))
sketch8.addConstraint(Sketcher.Constraint("Horizontal", 2, 2, 4, 2))
sketch8.addConstraint(Sketcher.Constraint("DistanceY", 2, 1, 2, 2, Q("10 mm")))
sketch8.addConstraint(Sketcher.Constraint("Angle", 1, Q("149 deg")))
sketch8.addConstraint(Sketcher.Constraint("DistanceY", 1, 2, -1, 1, Q("8 mm")))
sketch8.addConstraint(Sketcher.Constraint("DistanceX", 3, 1, 3, 2, Q("1.25 mm")))
sketch8.addConstraint(Sketcher.Constraint("DistanceX", -1, 1, 0, 2, Q("50.2 mm")))
groove3 = body.newObject("PartDesign::Groove", "Groove002")
groove3.Profile = sketch8
groove3.ReferenceAxis = (sketch8, ["Axis0"])
groove3.Angle = 360

# Sketch on YZ plane
sketch9 = body.newObject("Sketcher::SketchObject", "Sketch008")
sketch9.AttachmentSupport = (doc.getObject("YZ_Plane"), [""])
sketch9.MapMode = "FlatFace"
sketch9.AttachmentOffset = App.Placement(V(0, 0, 79), App.Rotation())
sketch9.addGeometry(Part.LineSegment(V(30.2, 2, 0), V(30.2, -8.8, 0)), False)
sketch9.addGeometry(Part.LineSegment(V(30.2, -8.8, 0), V(28.9, -8, 0)), False)
sketch9.addGeometry(Part.LineSegment(V(28.9, -8, 0), V(28.9, 2, 0)), False)
sketch9.addGeometry(Part.LineSegment(V(28.9, 2, 0), V(30.2, 2, 0)), False)
sketch9.addGeometry(Part.LineSegment(V(30.2, -8.8, 0), V(30.2, 2, 0)), True)  # axis
sketch9.addConstraint(Sketcher.Constraint("Coincident", 0, 2, 1, 1))
sketch9.addConstraint(Sketcher.Constraint("Coincident", 1, 2, 2, 1))
sketch9.addConstraint(Sketcher.Constraint("Coincident", 2, 2, 3, 1))
sketch9.addConstraint(Sketcher.Constraint("Coincident", 3, 2, 0, 1))
sketch9.addConstraint(Sketcher.Constraint("Vertical", 0))
sketch9.addConstraint(Sketcher.Constraint("Vertical", 2))
sketch9.addConstraint(Sketcher.Constraint("Horizontal", 3))
sketch9.addConstraint(Sketcher.Constraint("Vertical", 4))
sketch9.addConstraint(Sketcher.Constraint("Coincident", 4, 1, 0, 2))
sketch9.addConstraint(Sketcher.Constraint("Horizontal", 2, 2, 4, 2))
sketch9.addConstraint(Sketcher.Constraint("DistanceY", 2, 1, 2, 2, Q("10 mm")))
sketch9.addConstraint(Sketcher.Constraint("Angle", 1, Q("149 deg")))
sketch9.addConstraint(Sketcher.Constraint("DistanceY", 1, 2, -1, 1, Q("8 mm")))
sketch9.addConstraint(Sketcher.Constraint("DistanceX", 3, 1, 3, 2, Q("1.25 mm")))
sketch9.addConstraint(Sketcher.Constraint("DistanceX", -1, 1, 0, 2, Q("30.2 mm")))
groove4 = body.newObject("PartDesign::Groove", "Groove003")
groove4.Profile = sketch9
groove4.ReferenceAxis = (sketch9, ["Axis0"])
groove4.Angle = 360

# Sketch on YZ plane
sketch10 = body.newObject("Sketcher::SketchObject", "Sketch009")
sketch10.AttachmentSupport = (doc.getObject("YZ_Plane"), [""])
sketch10.MapMode = "FlatFace"
sketch10.AttachmentOffset = App.Placement(V(0, 0, 74.3), App.Rotation())
sketch10.addGeometry(Part.LineSegment(V(13, 2, 0), V(13, -8.8, 0)), False)
sketch10.addGeometry(Part.LineSegment(V(13, -8.8, 0), V(11.8, -8, 0)), False)
sketch10.addGeometry(Part.LineSegment(V(11.8, -8, 0), V(11.8, 2, 0)), False)
sketch10.addGeometry(Part.LineSegment(V(11.8, 2, 0), V(13, 2, 0)), False)
sketch10.addGeometry(Part.LineSegment(V(13, -8.8, 0), V(13, 2, 0)), True)  # axis
sketch10.addConstraint(Sketcher.Constraint("Coincident", 0, 2, 1, 1))
sketch10.addConstraint(Sketcher.Constraint("Coincident", 1, 2, 2, 1))
sketch10.addConstraint(Sketcher.Constraint("Coincident", 2, 2, 3, 1))
sketch10.addConstraint(Sketcher.Constraint("Coincident", 3, 2, 0, 1))
sketch10.addConstraint(Sketcher.Constraint("Vertical", 0))
sketch10.addConstraint(Sketcher.Constraint("Vertical", 2))
sketch10.addConstraint(Sketcher.Constraint("Horizontal", 3))
sketch10.addConstraint(Sketcher.Constraint("Vertical", 4))
sketch10.addConstraint(Sketcher.Constraint("Coincident", 4, 1, 0, 2))
sketch10.addConstraint(Sketcher.Constraint("Horizontal", 2, 2, 4, 2))
sketch10.addConstraint(Sketcher.Constraint("DistanceY", 2, 1, 2, 2, Q("10 mm")))
sketch10.addConstraint(Sketcher.Constraint("Angle", 1, Q("149 deg")))
sketch10.addConstraint(Sketcher.Constraint("DistanceX", -1, 1, 0, 2, Q("13 mm")))
sketch10.addConstraint(Sketcher.Constraint("DistanceY", 1, 2, -1, 1, Q("8 mm")))
sketch10.addConstraint(Sketcher.Constraint("DistanceX", 3, 1, 3, 2, Q("1.25 mm")))
groove5 = body.newObject("PartDesign::Groove", "Groove004")
groove5.Profile = sketch10
groove5.ReferenceAxis = (sketch10, ["Axis0"])
groove5.Angle = 360

# Sketch on YZ plane
sketch11 = body.newObject("Sketcher::SketchObject", "Sketch010")
sketch11.AttachmentSupport = (doc.getObject("YZ_Plane"), [""])
sketch11.MapMode = "FlatFace"
sketch11.AttachmentOffset = App.Placement(V(0, 0, 64), App.Rotation())
sketch11.addGeometry(Part.LineSegment(V(205, 2, 0), V(205, -8.8, 0)), False)
sketch11.addGeometry(Part.LineSegment(V(205, -8.8, 0), V(203.8, -8, 0)), False)
sketch11.addGeometry(Part.LineSegment(V(203.8, -8, 0), V(203.8, 2, 0)), False)
sketch11.addGeometry(Part.LineSegment(V(203.8, 2, 0), V(205, 2, 0)), False)
sketch11.addGeometry(Part.LineSegment(V(205, -8.8, 0), V(205, 2, 0)), True)  # axis
sketch11.addConstraint(Sketcher.Constraint("Coincident", 0, 2, 1, 1))
sketch11.addConstraint(Sketcher.Constraint("Coincident", 1, 2, 2, 1))
sketch11.addConstraint(Sketcher.Constraint("Coincident", 2, 2, 3, 1))
sketch11.addConstraint(Sketcher.Constraint("Coincident", 3, 2, 0, 1))
sketch11.addConstraint(Sketcher.Constraint("Vertical", 0))
sketch11.addConstraint(Sketcher.Constraint("Vertical", 2))
sketch11.addConstraint(Sketcher.Constraint("Horizontal", 3))
sketch11.addConstraint(Sketcher.Constraint("Vertical", 4))
sketch11.addConstraint(Sketcher.Constraint("Coincident", 4, 1, 0, 2))
sketch11.addConstraint(Sketcher.Constraint("Horizontal", 2, 2, 4, 2))
sketch11.addConstraint(Sketcher.Constraint("DistanceY", 2, 1, 2, 2, Q("10 mm")))
sketch11.addConstraint(Sketcher.Constraint("Angle", 1, Q("149 deg")))
sketch11.addConstraint(Sketcher.Constraint("DistanceX", -1, 1, 0, 2, Q("205 mm")))
sketch11.addConstraint(Sketcher.Constraint("DistanceY", 1, 2, -1, 1, Q("8 mm")))
sketch11.addConstraint(Sketcher.Constraint("DistanceX", 3, 1, 3, 2, Q("1.25 mm")))
groove6 = body.newObject("PartDesign::Groove", "Groove005")
groove6.Profile = sketch11
groove6.ReferenceAxis = (sketch11, ["Axis0"])
groove6.Angle = 360

# Sketch on YZ plane
sketch12 = body.newObject("Sketcher::SketchObject", "Sketch011")
sketch12.AttachmentSupport = (doc.getObject("YZ_Plane"), [""])
sketch12.MapMode = "FlatFace"
sketch12.AttachmentOffset = App.Placement(V(0, 0, 64), App.Rotation())
sketch12.addGeometry(Part.LineSegment(V(6, 2, 0), V(6, -8.8, 0)), False)
sketch12.addGeometry(Part.LineSegment(V(6, -8.8, 0), V(4.8, -8, 0)), False)
sketch12.addGeometry(Part.LineSegment(V(4.8, -8, 0), V(4.8, 2, 0)), False)
sketch12.addGeometry(Part.LineSegment(V(4.8, 2, 0), V(6, 2, 0)), False)
sketch12.addGeometry(Part.LineSegment(V(6, -8.8, 0), V(6, 2, 0)), True)  # axis
sketch12.addConstraint(Sketcher.Constraint("Coincident", 0, 2, 1, 1))
sketch12.addConstraint(Sketcher.Constraint("Coincident", 1, 2, 2, 1))
sketch12.addConstraint(Sketcher.Constraint("Coincident", 2, 2, 3, 1))
sketch12.addConstraint(Sketcher.Constraint("Coincident", 3, 2, 0, 1))
sketch12.addConstraint(Sketcher.Constraint("Vertical", 0))
sketch12.addConstraint(Sketcher.Constraint("Vertical", 2))
sketch12.addConstraint(Sketcher.Constraint("Horizontal", 3))
sketch12.addConstraint(Sketcher.Constraint("Vertical", 4))
sketch12.addConstraint(Sketcher.Constraint("Coincident", 4, 1, 0, 2))
sketch12.addConstraint(Sketcher.Constraint("Horizontal", 2, 2, 4, 2))
sketch12.addConstraint(Sketcher.Constraint("DistanceY", 2, 1, 2, 2, Q("10 mm")))
sketch12.addConstraint(Sketcher.Constraint("Angle", 1, Q("149 deg")))
sketch12.addConstraint(Sketcher.Constraint("DistanceX", -1, 1, 0, 2, Q("6 mm")))
sketch12.addConstraint(Sketcher.Constraint("DistanceY", 1, 2, -1, 1, Q("8 mm")))
sketch12.addConstraint(Sketcher.Constraint("DistanceX", 3, 1, 3, 2, Q("1.25 mm")))
groove7 = body.newObject("PartDesign::Groove", "Groove006")
groove7.Profile = sketch12
groove7.ReferenceAxis = (sketch12, ["Axis0"])
groove7.Angle = 360

# Sketch on YZ plane
sketch13 = body.newObject("Sketcher::SketchObject", "Sketch012")
sketch13.AttachmentSupport = (doc.getObject("YZ_Plane"), [""])
sketch13.MapMode = "FlatFace"
sketch13.AttachmentOffset = App.Placement(V(0, 0, 79), App.Rotation())
sketch13.addGeometry(Part.LineSegment(V(23, 2, 0), V(23, -8.8, 0)), False)
sketch13.addGeometry(Part.LineSegment(V(23, -8.8, 0), V(21.8, -8, 0)), False)
sketch13.addGeometry(Part.LineSegment(V(21.8, -8, 0), V(21.8, 2, 0)), False)
sketch13.addGeometry(Part.LineSegment(V(21.8, 2, 0), V(23, 2, 0)), False)
sketch13.addGeometry(Part.LineSegment(V(23, -8.8, 0), V(23, 2, 0)), True)  # axis
sketch13.addConstraint(Sketcher.Constraint("Coincident", 0, 2, 1, 1))
sketch13.addConstraint(Sketcher.Constraint("Coincident", 1, 2, 2, 1))
sketch13.addConstraint(Sketcher.Constraint("Coincident", 2, 2, 3, 1))
sketch13.addConstraint(Sketcher.Constraint("Coincident", 3, 2, 0, 1))
sketch13.addConstraint(Sketcher.Constraint("Vertical", 0))
sketch13.addConstraint(Sketcher.Constraint("Vertical", 2))
sketch13.addConstraint(Sketcher.Constraint("Horizontal", 3))
sketch13.addConstraint(Sketcher.Constraint("Vertical", 4))
sketch13.addConstraint(Sketcher.Constraint("Coincident", 4, 1, 0, 2))
sketch13.addConstraint(Sketcher.Constraint("Horizontal", 2, 2, 4, 2))
sketch13.addConstraint(Sketcher.Constraint("DistanceY", 2, 1, 2, 2, Q("10 mm")))
sketch13.addConstraint(Sketcher.Constraint("Angle", 1, Q("149 deg")))
sketch13.addConstraint(Sketcher.Constraint("DistanceX", -1, 1, 0, 2, Q("23 mm")))
sketch13.addConstraint(Sketcher.Constraint("DistanceY", 1, 2, -1, 1, Q("8 mm")))
sketch13.addConstraint(Sketcher.Constraint("DistanceX", 3, 1, 3, 2, Q("1.25 mm")))
groove8 = body.newObject("PartDesign::Groove", "Groove007")
groove8.Profile = sketch13
groove8.ReferenceAxis = (sketch13, ["Axis0"])
groove8.Angle = 360

# Sketch on YZ plane
sketch14 = body.newObject("Sketcher::SketchObject", "Sketch013")
sketch14.AttachmentSupport = (doc.getObject("YZ_Plane"), [""])
sketch14.MapMode = "FlatFace"
sketch14.AttachmentOffset = App.Placement(V(0, 0, 79), App.Rotation())
sketch14.addGeometry(Part.LineSegment(V(196, 2, 0), V(196, -8.8, 0)), False)
sketch14.addGeometry(Part.LineSegment(V(196, -8.8, 0), V(194.8, -8, 0)), False)
sketch14.addGeometry(Part.LineSegment(V(194.8, -8, 0), V(194.8, 2, 0)), False)
sketch14.addGeometry(Part.LineSegment(V(194.8, 2, 0), V(196, 2, 0)), False)
sketch14.addGeometry(Part.LineSegment(V(196, -8.8, 0), V(196, 2, 0)), True)  # axis
sketch14.addConstraint(Sketcher.Constraint("Coincident", 0, 2, 1, 1))
sketch14.addConstraint(Sketcher.Constraint("Coincident", 1, 2, 2, 1))
sketch14.addConstraint(Sketcher.Constraint("Coincident", 2, 2, 3, 1))
sketch14.addConstraint(Sketcher.Constraint("Coincident", 3, 2, 0, 1))
sketch14.addConstraint(Sketcher.Constraint("Vertical", 0))
sketch14.addConstraint(Sketcher.Constraint("Vertical", 2))
sketch14.addConstraint(Sketcher.Constraint("Horizontal", 3))
sketch14.addConstraint(Sketcher.Constraint("Vertical", 4))
sketch14.addConstraint(Sketcher.Constraint("Coincident", 4, 1, 0, 2))
sketch14.addConstraint(Sketcher.Constraint("Horizontal", 2, 2, 4, 2))
sketch14.addConstraint(Sketcher.Constraint("DistanceY", 2, 1, 2, 2, Q("10 mm")))
sketch14.addConstraint(Sketcher.Constraint("Angle", 1, Q("149 deg")))
sketch14.addConstraint(Sketcher.Constraint("DistanceX", -1, 1, 0, 2, Q("196 mm")))
sketch14.addConstraint(Sketcher.Constraint("DistanceY", 1, 2, -1, 1, Q("8 mm")))
sketch14.addConstraint(Sketcher.Constraint("DistanceX", 3, 1, 3, 2, Q("1.25 mm")))
groove9 = body.newObject("PartDesign::Groove", "Groove008")
groove9.Profile = sketch14
groove9.ReferenceAxis = (sketch14, ["Axis0"])
groove9.Angle = 360

# Sketch on XY plane
sketch15 = body.newObject("Sketcher::SketchObject", "Sketch014")
sketch15.AttachmentSupport = (doc.getObject("XY_Plane"), [""])
sketch15.MapMode = "FlatFace"
sketch15.addGeometry(Part.Circle(V(0.7, 13, 0), V(0, 0, 1), 1.7), False)
sketch15.addConstraint(Sketcher.Constraint("Diameter", 0, Q("3.33 mm")))
sketch15.addConstraint(Sketcher.Constraint("DistanceY", -1, 1, 0, 3, Q("13 mm")))
sketch15.addConstraint(Sketcher.Constraint("DistanceX", -1, 1, 0, 3, Q("0.7 mm")))
pocket4 = body.newObject("PartDesign::Pocket", "Pocket003")
pocket4.Profile = sketch15
pocket4.Length = 1.8
pocket4.Reversed = True
doc.recompute()

datumplane3 = body.newObject("PartDesign::Plane", "DatumPlane002")
datumplane3.AttachmentSupport = (doc.getObject("YZ_Plane"), [""])
datumplane3.MapMode = "FlatFace"
datumplane3.AttachmentOffset = App.Placement(V(0, 0, 44), App.Rotation())
mirrored3 = body.newObject("PartDesign::Mirrored", "Mirrored002")
mirrored3.Originals = [pocket4]
mirrored3.MirrorPlane = (datumplane3, [""])
body.Tip = mirrored3

# Sketch on XZ plane
sketch16 = body.newObject("Sketcher::SketchObject", "Sketch015")
sketch16.AttachmentSupport = (doc.getObject("XZ_Plane"), [""])
sketch16.MapMode = "FlatFace"
sketch16.AttachmentOffset = App.Placement(V(0, 0, 8), App.Rotation())
sketch16.addGeometry(Part.Circle(V(89, -2.4, 0), V(0, 0, 1), 2), False)
sketch16.addGeometry(Part.Circle(V(-1, -2.4, 0), V(0, 0, 1), 2), False)
sketch16.addConstraint(Sketcher.Constraint("Equal", 0, 1))
sketch16.addConstraint(Sketcher.Constraint("Horizontal", 0, 3, 1, 3))
sketch16.addConstraint(Sketcher.Constraint("Diameter", 0, Q("4 mm")))
sketch16.addConstraint(Sketcher.Constraint("DistanceX", -1, 1, 0, 3, Q("89 mm")))
sketch16.addConstraint(Sketcher.Constraint("DistanceX", 1, 3, -1, 1, Q("1 mm")))
sketch16.addConstraint(Sketcher.Constraint("DistanceY", 0, 3, -1, 1, Q("2.4 mm")))
pocket5 = body.newObject("PartDesign::Pocket", "Pocket004")
pocket5.Profile = sketch16
pocket5.Length = 10
doc.recompute()

fillet2 = body.newObject("PartDesign::Fillet", "Fillet001")
fillet2.Base = (pocket5, edges_at(pocket5, [
    (94, 105.5, -8),
    (94, 105.5, 2),
    (-6, 105.5, -8),
    (-6, 105.5, 2),
]))
fillet2.Radius = 0.5

doc.recompute()
